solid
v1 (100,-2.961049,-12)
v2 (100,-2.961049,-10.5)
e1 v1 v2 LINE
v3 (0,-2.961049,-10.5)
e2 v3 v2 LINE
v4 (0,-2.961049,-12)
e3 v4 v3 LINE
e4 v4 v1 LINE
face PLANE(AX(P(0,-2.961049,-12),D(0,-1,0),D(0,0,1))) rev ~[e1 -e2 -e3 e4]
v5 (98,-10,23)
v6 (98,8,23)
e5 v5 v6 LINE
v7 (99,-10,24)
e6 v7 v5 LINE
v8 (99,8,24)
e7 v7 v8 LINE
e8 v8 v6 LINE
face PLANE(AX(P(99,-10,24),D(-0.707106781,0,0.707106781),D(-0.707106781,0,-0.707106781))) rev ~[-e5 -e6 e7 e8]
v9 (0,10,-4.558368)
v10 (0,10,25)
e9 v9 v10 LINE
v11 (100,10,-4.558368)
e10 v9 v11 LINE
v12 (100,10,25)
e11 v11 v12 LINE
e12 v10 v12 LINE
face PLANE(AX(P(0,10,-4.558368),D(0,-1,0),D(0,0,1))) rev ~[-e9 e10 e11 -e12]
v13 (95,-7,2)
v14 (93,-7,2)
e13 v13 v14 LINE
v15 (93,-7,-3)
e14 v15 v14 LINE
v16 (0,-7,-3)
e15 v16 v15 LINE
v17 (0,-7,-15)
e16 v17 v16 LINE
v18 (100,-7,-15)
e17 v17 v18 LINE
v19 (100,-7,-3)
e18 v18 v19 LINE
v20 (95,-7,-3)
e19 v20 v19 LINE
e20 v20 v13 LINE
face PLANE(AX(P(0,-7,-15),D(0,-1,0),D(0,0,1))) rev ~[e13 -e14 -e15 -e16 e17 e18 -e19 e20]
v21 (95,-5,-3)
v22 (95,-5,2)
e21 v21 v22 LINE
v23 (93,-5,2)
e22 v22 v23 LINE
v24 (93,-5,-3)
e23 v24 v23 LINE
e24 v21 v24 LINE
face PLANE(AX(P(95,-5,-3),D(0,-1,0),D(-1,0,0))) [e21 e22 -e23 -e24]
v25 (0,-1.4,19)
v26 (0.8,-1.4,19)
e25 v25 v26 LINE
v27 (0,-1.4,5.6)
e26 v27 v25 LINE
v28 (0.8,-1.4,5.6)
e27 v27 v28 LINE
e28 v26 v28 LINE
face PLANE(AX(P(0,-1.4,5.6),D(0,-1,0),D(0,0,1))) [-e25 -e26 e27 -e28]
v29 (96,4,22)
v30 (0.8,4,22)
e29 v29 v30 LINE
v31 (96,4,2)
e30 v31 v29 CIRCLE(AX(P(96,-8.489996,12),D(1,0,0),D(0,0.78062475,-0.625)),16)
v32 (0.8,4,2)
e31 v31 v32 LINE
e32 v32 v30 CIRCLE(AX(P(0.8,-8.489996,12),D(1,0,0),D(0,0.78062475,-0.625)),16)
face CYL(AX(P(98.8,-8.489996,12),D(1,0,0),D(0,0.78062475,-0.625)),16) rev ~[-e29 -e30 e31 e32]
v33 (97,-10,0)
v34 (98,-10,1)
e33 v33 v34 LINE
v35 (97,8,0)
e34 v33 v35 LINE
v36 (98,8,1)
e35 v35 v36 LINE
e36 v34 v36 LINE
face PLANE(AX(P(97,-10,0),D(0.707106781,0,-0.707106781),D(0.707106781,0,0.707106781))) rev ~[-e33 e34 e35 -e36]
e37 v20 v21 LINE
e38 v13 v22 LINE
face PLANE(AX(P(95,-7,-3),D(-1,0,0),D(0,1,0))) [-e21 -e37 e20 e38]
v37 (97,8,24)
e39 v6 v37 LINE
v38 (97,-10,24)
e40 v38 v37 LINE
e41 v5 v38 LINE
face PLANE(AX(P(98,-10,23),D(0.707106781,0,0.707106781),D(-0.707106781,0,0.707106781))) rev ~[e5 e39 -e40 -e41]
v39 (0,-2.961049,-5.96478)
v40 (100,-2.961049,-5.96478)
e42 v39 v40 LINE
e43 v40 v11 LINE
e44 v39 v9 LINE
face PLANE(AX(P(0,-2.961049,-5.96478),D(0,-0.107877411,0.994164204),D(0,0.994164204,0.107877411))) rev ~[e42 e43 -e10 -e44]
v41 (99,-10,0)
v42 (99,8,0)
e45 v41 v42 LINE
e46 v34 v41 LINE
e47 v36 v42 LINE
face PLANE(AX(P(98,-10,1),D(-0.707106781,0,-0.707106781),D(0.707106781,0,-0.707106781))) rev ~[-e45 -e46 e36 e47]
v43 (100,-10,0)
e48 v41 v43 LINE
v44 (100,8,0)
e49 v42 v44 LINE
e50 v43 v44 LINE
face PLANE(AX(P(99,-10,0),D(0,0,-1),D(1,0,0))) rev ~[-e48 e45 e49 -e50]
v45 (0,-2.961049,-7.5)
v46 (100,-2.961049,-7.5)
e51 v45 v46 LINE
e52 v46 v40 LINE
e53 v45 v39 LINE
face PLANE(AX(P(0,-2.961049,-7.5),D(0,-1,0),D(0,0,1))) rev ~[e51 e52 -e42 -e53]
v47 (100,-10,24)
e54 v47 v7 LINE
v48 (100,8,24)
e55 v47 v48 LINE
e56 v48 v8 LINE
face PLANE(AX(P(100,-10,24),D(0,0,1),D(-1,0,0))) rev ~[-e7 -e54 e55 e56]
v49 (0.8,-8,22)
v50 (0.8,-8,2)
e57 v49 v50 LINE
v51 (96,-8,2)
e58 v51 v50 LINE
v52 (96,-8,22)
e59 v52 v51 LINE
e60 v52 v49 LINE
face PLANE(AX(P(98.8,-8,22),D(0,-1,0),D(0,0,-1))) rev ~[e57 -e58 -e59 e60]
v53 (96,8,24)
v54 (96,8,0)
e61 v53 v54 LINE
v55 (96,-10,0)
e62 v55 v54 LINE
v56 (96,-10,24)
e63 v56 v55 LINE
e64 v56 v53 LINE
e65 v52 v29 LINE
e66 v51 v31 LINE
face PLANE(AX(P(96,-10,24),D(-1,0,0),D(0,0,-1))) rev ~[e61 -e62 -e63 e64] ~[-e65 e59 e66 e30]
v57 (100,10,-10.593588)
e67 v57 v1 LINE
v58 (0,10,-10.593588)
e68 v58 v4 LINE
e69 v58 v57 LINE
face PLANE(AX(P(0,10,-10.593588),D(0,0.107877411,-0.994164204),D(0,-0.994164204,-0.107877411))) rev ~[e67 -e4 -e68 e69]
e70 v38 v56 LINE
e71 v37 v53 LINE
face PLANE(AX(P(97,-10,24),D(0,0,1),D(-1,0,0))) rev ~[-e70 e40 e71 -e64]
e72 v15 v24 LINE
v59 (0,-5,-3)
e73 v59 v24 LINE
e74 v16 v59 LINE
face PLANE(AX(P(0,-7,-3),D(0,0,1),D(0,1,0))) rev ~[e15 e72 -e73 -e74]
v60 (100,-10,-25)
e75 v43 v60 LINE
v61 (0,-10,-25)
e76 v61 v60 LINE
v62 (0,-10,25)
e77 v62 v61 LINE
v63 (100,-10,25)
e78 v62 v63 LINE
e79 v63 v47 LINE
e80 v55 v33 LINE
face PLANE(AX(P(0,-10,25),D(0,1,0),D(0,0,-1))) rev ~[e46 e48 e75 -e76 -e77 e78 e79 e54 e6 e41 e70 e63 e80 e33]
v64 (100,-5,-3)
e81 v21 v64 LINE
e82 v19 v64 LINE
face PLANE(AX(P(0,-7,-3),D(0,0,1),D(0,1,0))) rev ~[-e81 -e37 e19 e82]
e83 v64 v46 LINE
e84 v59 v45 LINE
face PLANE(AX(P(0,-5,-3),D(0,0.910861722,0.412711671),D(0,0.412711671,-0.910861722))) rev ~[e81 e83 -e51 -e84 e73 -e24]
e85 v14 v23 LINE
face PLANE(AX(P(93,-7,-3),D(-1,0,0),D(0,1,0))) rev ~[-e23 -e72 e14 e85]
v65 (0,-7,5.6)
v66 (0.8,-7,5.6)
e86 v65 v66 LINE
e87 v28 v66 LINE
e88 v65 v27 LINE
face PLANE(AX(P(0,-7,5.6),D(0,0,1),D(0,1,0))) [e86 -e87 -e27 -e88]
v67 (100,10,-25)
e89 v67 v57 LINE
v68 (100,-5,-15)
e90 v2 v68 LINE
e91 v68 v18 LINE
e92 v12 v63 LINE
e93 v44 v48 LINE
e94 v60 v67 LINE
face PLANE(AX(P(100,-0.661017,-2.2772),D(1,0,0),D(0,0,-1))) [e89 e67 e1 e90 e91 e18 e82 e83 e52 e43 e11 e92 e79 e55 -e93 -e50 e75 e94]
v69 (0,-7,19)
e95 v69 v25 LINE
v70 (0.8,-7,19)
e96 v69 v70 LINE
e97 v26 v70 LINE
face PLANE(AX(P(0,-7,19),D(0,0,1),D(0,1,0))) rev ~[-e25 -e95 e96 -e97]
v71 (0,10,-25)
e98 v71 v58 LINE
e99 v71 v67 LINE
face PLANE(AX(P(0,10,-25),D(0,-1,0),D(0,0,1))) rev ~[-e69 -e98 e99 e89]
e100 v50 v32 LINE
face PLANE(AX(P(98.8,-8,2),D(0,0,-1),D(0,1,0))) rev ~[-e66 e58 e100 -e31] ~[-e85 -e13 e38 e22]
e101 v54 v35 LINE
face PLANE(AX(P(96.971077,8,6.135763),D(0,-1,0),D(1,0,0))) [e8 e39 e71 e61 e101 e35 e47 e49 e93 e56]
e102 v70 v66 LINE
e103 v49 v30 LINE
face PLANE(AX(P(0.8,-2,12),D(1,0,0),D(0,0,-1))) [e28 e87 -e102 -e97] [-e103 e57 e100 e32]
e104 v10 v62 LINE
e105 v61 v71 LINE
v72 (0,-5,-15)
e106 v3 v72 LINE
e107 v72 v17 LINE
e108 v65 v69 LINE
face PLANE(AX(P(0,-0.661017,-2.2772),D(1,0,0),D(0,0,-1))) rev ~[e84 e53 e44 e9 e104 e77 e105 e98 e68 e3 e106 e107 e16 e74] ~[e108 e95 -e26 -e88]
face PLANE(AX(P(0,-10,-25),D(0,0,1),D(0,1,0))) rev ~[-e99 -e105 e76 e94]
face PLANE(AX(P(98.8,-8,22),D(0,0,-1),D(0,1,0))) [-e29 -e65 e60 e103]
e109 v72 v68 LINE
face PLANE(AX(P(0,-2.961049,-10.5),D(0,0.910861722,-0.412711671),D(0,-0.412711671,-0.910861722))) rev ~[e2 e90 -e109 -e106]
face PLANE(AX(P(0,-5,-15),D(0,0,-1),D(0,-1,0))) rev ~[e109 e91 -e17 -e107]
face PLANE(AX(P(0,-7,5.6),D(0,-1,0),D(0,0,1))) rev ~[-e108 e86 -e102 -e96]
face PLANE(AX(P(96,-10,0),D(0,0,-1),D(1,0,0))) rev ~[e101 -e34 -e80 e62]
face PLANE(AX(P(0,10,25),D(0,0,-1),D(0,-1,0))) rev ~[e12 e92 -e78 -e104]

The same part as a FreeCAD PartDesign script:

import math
import FreeCAD as App
import Part
import Sketcher
Q = App.Units.Quantity


def add_polygon(sketch, points):
    """Adds a closed chain of lines whose ends are joined by coincident constraints."""
    first, n = sketch.GeometryCount, len(points)
    for a, b in zip(points, points[1:] + points[:1]):
        sketch.addGeometry(Part.LineSegment(App.Vector(*a, 0), App.Vector(*b, 0)), False)
    for i in range(n):
        sketch.addConstraint(Sketcher.Constraint("Coincident", first + i, 2, first + (i + 1) % n, 1))

doc = App.newDocument("Part")
body = doc.addObject("PartDesign::Body", "Body")

sketch1 = body.newObject("Sketcher::SketchObject", "Sketch")
sketch1.AttachmentSupport = (doc.getObject("YZ_Plane"), [""])
sketch1.MapMode = "FlatFace"
add_polygon(sketch1, [(10, -4.558368), (10, 25), (-10, 25), (-10, -25), (10, -25), (10, -10.593588), (-2.961049, -12), (-2.961049, -10.5), (-5, -15), (-7, -15), (-7, -3), (-5, -3), (-2.961049, -7.5), (-2.961049, -5.96478)])
sketch1.addConstraint([
    Sketcher.Constraint("Vertical", 0),
    Sketcher.Constraint("Horizontal", 1),
    Sketcher.Constraint("Vertical", 2),
    Sketcher.Constraint("Horizontal", 3),
    Sketcher.Constraint("Vertical", 4),
    Sketcher.Constraint("Vertical", 6),
    Sketcher.Constraint("Horizontal", 8),
    Sketcher.Constraint("Vertical", 9),
    Sketcher.Constraint("Horizontal", 10),
    Sketcher.Constraint("Vertical", 12),
    Sketcher.Constraint("Symmetric", 0, 2, 2, 2, -1, 1),
    Sketcher.Constraint("Parallel", 5, 13),
    Sketcher.Constraint("Vertical", 0, 2, 3, 2),
    Sketcher.Constraint("Vertical", 7, 2, 10, 2),
    Sketcher.Constraint("Vertical", 6, 2, 11, 2),
    Sketcher.Constraint("Equal", 7, 11),
    Sketcher.Constraint("DistanceX", 1, 2, 1, 1, Q("20 mm")),
    Sketcher.Constraint("DistanceX", 8, 2, 8, 1, Q("2 mm")),
    Sketcher.Constraint("DistanceY", 2, 2, 2, 1, Q("50 mm")),
    Sketcher.Constraint("DistanceY", 9, 1, 9, 2, Q("12 mm")),
    Sketcher.Constraint("DistanceY", 6, 1, 6, 2, Q("1.5 mm")),
    Sketcher.Constraint("DistanceY", 5, 2, -1, 1, Q("12 mm")),
    Sketcher.Constraint("DistanceX", 7, 2, -1, 1, Q("5 mm")),
    Sketcher.Constraint("DistanceY", 7, 2, -1, 1, Q("15 mm")),
    Sketcher.Constraint("DistanceY", 4, 1, 4, 2, Q("14.406412 mm")),
    Sketcher.Constraint("DistanceY", 12, 1, 12, 2, Q("1.53522 mm")),
    Sketcher.Constraint("Distance", 5, Q("13.037131 mm")),
])
pad1 = body.newObject("PartDesign::Pad", "Pad")
pad1.Profile = sketch1
pad1.Length = 100

sketch2 = body.newObject("Sketcher::SketchObject", "Sketch001")
sketch2.AttachmentSupport = (doc.getObject("YZ_Plane"), [""])
sketch2.MapMode = "FlatFace"
sketch2.AttachmentOffset = App.Placement(App.Vector(0, 0, 98.8), App.Rotation())
add_polygon(sketch2, [(4, 22), (-8, 22), (-8, 2), (4, 2)])
sketch2.addConstraint([
    Sketcher.Constraint("Horizontal", 0),
    Sketcher.Constraint("Vertical", 1),
    Sketcher.Constraint("Horizontal", 2),
    Sketcher.Constraint("Vertical", 3),
    Sketcher.Constraint("DistanceX", 0, 2, 0, 1, Q("12 mm")),
    Sketcher.Constraint("DistanceY", 1, 2, 1, 1, Q("20 mm")),
    Sketcher.Constraint("DistanceX", 0, 2, -1, 1, Q("8 mm")),
    Sketcher.Constraint("DistanceY", -1, 1, 0, 2, Q("22 mm")),
])
pocket1 = body.newObject("PartDesign::Pocket", "Pocket")
pocket1.Profile = sketch2
pocket1.Length = 98

sketch3 = body.newObject("Sketcher::SketchObject", "Sketch002")
sketch3.AttachmentSupport = (doc.getObject("YZ_Plane"), [""])
sketch3.MapMode = "FlatFace"
add_polygon(sketch3, [(-1.4, 5.6), (-7, 5.6), (-7, 19), (-1.4, 19)])
sketch3.addConstraint([
    Sketcher.Constraint("Horizontal", 0),
    Sketcher.Constraint("Vertical", 1),
    Sketcher.Constraint("Horizontal", 2),
    Sketcher.Constraint("Vertical", 3),
    Sketcher.Constraint("DistanceX", 0, 2, 0, 1, Q("5.6 mm")),
    Sketcher.Constraint("DistanceY", 1, 1, 1, 2, Q("13.4 mm")),
    Sketcher.Constraint("DistanceX", 0, 2, -1, 1, Q("7 mm")),
    Sketcher.Constraint("DistanceY", -1, 1, 1, 2, Q("19 mm")),
])
pocket2 = body.newObject("PartDesign::Pocket", "Pocket001")
pocket2.Profile = sketch3
pocket2.Length = 95
pocket2.Reversed = True

sketch4 = body.newObject("Sketcher::SketchObject", "Sketch003")
sketch4.AttachmentSupport = (doc.getObject("XY_Plane"), [""])
sketch4.MapMode = "FlatFace"
sketch4.AttachmentOffset = App.Placement(App.Vector(0, 0, -3), App.Rotation())
add_polygon(sketch4, [(95, -5), (95, -7), (93, -7), (93, -5)])
sketch4.addConstraint([
    Sketcher.Constraint("Vertical", 0),
    Sketcher.Constraint("Horizontal", 1),
    Sketcher.Constraint("Vertical", 2),
    Sketcher.Constraint("Horizontal", 3),
    Sketcher.Constraint("Equal", 3, 0),
    Sketcher.Constraint("DistanceX", 1, 2, 1, 1, Q("2 mm")),
    Sketcher.Constraint("DistanceX", -1, 1, 0, 2, Q("95 mm")),
    Sketcher.Constraint("DistanceY", 0, 2, -1, 1, Q("7 mm")),
])
pocket3 = body.newObject("PartDesign::Pocket", "Pocket002")
pocket3.Profile = sketch4
pocket3.Length = 9
pocket3.Reversed = True

sketch5 = body.newObject("Sketcher::SketchObject", "Sketch004")
sketch5.AttachmentSupport = (doc.getObject("YZ_Plane"), [""])
sketch5.MapMode = "FlatFace"
sketch5.AttachmentOffset = App.Placement(App.Vector(0, 0, 98.8), App.Rotation())
sketch5.addGeometry([
    Part.LineSegment(App.Vector(4, 22, 0), App.Vector(4, 2, 0)),
    Part.ArcOfCircle(Part.Circle(App.Vector(-8.489996, 12, 0), App.Vector(0, 0, 1), 16), math.radians(-38.682187), math.radians(38.682187)),
], False)
sketch5.addConstraint([
    Sketcher.Constraint("Coincident", 0, 1, 1, 2),
    Sketcher.Constraint("Coincident", 1, 1, 0, 2),
    Sketcher.Constraint("Vertical", 0),
    Sketcher.Constraint("Radius", 1, Q("16 mm")),
    Sketcher.Constraint("DistanceY", 0, 2, 0, 1, Q("20 mm")),
    Sketcher.Constraint("DistanceY", -1, 1, 1, 3, Q("12 mm")),
    Sketcher.Constraint("DistanceX", -1, 1, 0, 1, Q("4 mm")),
])
pocket4 = body.newObject("PartDesign::Pocket", "Pocket003")
pocket4.Profile = sketch5
pocket4.Length = 98

sketch6 = body.newObject("Sketcher::SketchObject", "Sketch005")
sketch6.AttachmentSupport = (doc.getObject("XZ_Plane"), [""])
sketch6.MapMode = "FlatFace"
sketch6.AttachmentOffset = App.Placement(App.Vector(0, 0, 10), App.Rotation())
add_polygon(sketch6, [(96, 0), (97, 0), (98, 1), (99, 0), (100, 0), (100, 24), (99, 24), (98, 23), (97, 24), (96, 24)])
sketch6.addConstraint([
    Sketcher.Constraint("Horizontal", 0),
    Sketcher.Constraint("Horizontal", 3),
    Sketcher.Constraint("Vertical", 4),
    Sketcher.Constraint("Horizontal", 5),
    Sketcher.Constraint("Horizontal", 8),
    Sketcher.Constraint("Vertical", 9),
    Sketcher.Constraint("PointOnObject", 0, 2, -1),
    Sketcher.Constraint("PointOnObject", 2, 2, -1),
    Sketcher.Constraint("Perpendicular", 1, 2),
    Sketcher.Constraint("Perpendicular", 2, 6),
    Sketcher.Constraint("Perpendicular", 6, 7),
    Sketcher.Constraint("Horizontal", 5, 2, 7, 2),
    Sketcher.Constraint("Vertical", 2, 2, 5, 2),
    Sketcher.Constraint("Vertical", 1, 2, 6, 2),
    Sketcher.Constraint("Vertical", 0, 2, 7, 2),
    Sketcher.Constraint("Equal", 0, 3),
    Sketcher.Constraint("DistanceX", 0, 1, 0, 2, Q("1 mm")),
    Sketcher.Constraint("DistanceY", 4, 1, 4, 2, Q("24 mm")),
    Sketcher.Constraint("DistanceX", -1, 1, 0, 2, Q("97 mm")),
    Sketcher.Constraint("DistanceX", -1, 1, 1, 2, Q("98 mm")),
])
pocket5 = body.newObject("PartDesign::Pocket", "Pocket004")
pocket5.Profile = sketch6
pocket5.Length = 18

doc.recompute()
